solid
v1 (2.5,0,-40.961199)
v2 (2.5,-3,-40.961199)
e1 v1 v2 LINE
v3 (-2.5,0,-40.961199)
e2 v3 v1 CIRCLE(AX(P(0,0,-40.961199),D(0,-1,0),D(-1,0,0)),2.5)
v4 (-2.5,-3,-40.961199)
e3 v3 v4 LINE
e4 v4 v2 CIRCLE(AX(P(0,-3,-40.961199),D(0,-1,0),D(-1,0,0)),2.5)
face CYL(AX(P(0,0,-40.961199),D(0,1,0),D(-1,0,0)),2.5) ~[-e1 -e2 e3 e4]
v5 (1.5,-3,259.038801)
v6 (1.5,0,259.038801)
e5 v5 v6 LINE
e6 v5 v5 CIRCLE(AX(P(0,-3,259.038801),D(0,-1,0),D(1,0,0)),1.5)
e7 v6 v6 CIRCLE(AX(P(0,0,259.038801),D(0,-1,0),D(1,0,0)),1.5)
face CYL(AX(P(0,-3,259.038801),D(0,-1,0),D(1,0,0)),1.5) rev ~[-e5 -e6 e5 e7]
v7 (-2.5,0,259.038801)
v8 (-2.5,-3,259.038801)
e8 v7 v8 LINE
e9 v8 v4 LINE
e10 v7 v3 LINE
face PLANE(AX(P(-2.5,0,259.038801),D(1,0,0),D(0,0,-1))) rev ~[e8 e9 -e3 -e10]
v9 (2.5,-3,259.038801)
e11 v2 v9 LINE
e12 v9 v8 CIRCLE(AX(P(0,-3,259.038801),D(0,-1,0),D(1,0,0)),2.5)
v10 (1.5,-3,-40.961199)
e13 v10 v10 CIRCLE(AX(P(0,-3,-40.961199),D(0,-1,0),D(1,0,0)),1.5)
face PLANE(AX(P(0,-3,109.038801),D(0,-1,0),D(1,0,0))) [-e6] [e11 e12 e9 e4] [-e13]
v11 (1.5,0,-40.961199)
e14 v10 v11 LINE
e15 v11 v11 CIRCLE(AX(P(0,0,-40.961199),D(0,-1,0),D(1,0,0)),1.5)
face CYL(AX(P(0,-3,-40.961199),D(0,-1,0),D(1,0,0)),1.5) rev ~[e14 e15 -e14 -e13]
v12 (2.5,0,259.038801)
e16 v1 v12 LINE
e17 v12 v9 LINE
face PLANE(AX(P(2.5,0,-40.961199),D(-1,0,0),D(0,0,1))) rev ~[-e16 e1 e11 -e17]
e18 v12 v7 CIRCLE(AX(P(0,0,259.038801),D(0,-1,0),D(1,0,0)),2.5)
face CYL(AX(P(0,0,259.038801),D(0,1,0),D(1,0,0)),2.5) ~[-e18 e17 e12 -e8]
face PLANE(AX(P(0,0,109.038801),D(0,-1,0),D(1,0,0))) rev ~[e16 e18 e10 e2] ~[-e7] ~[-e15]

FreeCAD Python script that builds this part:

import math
import FreeCAD as App
import Part
import Sketcher

doc = App.newDocument("Part")
body = doc.addObject("PartDesign::Body", "Body")

# Sketch on XZ plane
sketch1 = body.newObject("Sketcher::SketchObject", "Sketch")
sketch1.AttachmentSupport = (doc.getObject("XZ_Plane"), [""])
sketch1.MapMode = "FlatFace"
sketch1.addGeometry([
    Part.LineSegment(App.Vector(2.5, -40.961199, 0), App.Vector(2.5, 259.038801, 0)),
    Part.ArcOfCircle(Part.Circle(App.Vector(0, 259.038801, 0), App.Vector(0, 0, 1), 2.5), math.radians(0), math.radians(180)),
    Part.LineSegment(App.Vector(-2.5, 259.038801, 0), App.Vector(-2.5, -40.961199, 0)),
    Part.ArcOfCircle(Part.Circle(App.Vector(0, -40.961199, 0), App.Vector(0, 0, 1), 2.5), math.radians(180), math.radians(360)),
], False)
sketch1.addConstraint([
    Sketcher.Constraint("Tangent", 0, 2, 1, 1),
    Sketcher.Constraint("Tangent", 1, 2, 2, 1),
    Sketcher.Constraint("Tangent", 2, 2, 3, 1),
    Sketcher.Constraint("Tangent", 3, 2, 0, 1),
    Sketcher.Constraint("Vertical", 0),
    Sketcher.Constraint("Vertical", 2),
    Sketcher.Constraint("PointOnObject", 1, 3, -2),
    Sketcher.Constraint("Radius", 1, 2.5),
    Sketcher.Constraint("DistanceY", 0, 1, 0, 2, 300.0),
    Sketcher.Constraint("DistanceY", -1, 1, 1, 3, 259.038801),
])
pad1 = body.newObject("PartDesign::Pad", "Pad")
pad1.Profile = sketch1
pad1.Length = 3

# Sketch on XZ plane
sketch2 = body.newObject("Sketcher::SketchObject", "Sketch001")
sketch2.AttachmentSupport = (doc.getObject("XZ_Plane"), [""])
sketch2.MapMode = "FlatFace"
sketch2.AttachmentOffset = App.Placement(App.Vector(0, 0, 3), App.Rotation())
sketch2.addGeometry([
    Part.Circle(App.Vector(0, 259.038801, 0), App.Vector(0, 0, 1), 1.5),
    Part.Circle(App.Vector(0, -40.961199, 0), App.Vector(0, 0, 1), 1.5),
], False)
sketch2.addConstraint([
    Sketcher.Constraint("Equal", 0, 1),
    Sketcher.Constraint("PointOnObject", 0, 3, -2),
    Sketcher.Constraint("PointOnObject", 1, 3, -2),
    Sketcher.Constraint("Diameter", 0, 3.0),
    Sketcher.Constraint("DistanceY", 1, 3, 0, 3, 300.0),
    Sketcher.Constraint("DistanceY", -1, 1, 0, 3, 259.038801),
])
pocket1 = body.newObject("PartDesign::Pocket", "Pocket")
pocket1.Profile = sketch2
pocket1.Type = "ThroughAll"

doc.recompute()
